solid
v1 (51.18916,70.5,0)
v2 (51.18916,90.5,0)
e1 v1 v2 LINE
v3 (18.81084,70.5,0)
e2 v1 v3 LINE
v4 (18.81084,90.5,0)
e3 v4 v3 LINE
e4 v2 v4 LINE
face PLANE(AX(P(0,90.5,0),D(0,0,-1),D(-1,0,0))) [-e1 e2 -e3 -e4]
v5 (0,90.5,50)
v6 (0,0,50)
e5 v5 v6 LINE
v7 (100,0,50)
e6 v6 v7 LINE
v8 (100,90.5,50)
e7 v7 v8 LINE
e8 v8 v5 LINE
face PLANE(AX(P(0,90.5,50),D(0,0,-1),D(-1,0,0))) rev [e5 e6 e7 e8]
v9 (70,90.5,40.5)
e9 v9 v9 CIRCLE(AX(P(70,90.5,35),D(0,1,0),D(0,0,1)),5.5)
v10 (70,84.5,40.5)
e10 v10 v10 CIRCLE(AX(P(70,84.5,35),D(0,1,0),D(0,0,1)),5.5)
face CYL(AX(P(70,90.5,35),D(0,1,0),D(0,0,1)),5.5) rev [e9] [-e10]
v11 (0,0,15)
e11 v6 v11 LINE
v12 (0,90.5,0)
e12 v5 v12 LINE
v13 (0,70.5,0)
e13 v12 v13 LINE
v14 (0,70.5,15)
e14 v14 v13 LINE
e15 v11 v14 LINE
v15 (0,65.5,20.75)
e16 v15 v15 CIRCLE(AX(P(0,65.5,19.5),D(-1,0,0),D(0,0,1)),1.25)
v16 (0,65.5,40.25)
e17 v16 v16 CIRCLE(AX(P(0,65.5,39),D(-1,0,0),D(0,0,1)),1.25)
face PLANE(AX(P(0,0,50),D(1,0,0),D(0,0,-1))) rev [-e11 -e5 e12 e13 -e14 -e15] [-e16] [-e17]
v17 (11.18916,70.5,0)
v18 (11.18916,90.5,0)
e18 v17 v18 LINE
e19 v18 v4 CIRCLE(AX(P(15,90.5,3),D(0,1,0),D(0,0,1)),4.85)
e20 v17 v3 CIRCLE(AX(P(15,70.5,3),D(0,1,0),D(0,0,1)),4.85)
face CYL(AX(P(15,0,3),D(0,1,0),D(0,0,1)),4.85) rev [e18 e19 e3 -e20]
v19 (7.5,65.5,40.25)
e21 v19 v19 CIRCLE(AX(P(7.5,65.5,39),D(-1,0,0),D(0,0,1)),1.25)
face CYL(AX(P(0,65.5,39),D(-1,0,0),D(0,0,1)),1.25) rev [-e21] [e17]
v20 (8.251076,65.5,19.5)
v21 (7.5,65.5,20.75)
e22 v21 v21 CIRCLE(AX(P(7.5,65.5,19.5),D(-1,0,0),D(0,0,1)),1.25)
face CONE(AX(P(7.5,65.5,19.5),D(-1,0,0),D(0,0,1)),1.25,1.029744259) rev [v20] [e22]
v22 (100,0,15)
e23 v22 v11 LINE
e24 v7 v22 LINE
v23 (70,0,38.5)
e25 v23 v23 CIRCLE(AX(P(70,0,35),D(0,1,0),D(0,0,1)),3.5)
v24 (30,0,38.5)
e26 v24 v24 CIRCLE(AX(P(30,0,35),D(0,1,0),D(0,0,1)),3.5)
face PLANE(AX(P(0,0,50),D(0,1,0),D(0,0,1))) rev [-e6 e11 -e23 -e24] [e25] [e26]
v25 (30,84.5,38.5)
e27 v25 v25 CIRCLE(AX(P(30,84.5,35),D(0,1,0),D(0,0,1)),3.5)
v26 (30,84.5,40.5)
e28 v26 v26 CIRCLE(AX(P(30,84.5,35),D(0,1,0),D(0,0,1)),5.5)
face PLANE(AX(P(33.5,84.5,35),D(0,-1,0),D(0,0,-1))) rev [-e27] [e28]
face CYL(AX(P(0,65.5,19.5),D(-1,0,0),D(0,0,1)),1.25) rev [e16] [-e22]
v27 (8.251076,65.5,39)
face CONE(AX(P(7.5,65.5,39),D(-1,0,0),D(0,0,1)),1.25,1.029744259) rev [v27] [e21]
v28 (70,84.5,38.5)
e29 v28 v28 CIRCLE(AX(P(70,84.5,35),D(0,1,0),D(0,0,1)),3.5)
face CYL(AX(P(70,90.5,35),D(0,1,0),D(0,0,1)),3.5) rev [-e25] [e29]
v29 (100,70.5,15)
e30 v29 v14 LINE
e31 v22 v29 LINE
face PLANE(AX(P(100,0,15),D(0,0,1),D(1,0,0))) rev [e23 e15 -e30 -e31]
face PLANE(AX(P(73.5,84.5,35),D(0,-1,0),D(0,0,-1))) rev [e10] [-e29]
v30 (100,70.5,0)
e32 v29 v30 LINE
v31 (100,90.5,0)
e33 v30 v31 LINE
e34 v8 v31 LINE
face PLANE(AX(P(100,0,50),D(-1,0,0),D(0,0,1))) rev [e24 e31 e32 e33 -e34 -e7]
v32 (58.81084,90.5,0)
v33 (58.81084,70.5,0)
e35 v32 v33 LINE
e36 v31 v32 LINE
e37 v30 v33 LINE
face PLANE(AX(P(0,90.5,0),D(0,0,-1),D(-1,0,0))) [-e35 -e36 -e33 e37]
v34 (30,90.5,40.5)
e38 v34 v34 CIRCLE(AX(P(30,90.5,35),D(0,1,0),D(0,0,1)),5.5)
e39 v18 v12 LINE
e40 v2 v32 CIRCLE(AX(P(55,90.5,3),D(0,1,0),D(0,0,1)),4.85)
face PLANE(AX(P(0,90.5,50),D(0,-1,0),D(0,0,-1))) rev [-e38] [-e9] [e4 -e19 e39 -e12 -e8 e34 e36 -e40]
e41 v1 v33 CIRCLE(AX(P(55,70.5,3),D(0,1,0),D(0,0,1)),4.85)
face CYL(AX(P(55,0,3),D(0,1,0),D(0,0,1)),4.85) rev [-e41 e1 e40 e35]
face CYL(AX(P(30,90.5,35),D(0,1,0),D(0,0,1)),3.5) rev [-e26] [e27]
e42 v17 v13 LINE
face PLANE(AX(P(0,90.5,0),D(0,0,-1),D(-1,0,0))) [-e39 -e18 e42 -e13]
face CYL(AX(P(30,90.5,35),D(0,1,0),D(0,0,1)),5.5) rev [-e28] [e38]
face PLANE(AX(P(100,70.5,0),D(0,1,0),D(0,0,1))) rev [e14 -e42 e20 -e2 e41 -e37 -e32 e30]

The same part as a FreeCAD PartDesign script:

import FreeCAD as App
import Part
import Sketcher
from FreeCAD import Vector

doc = App.newDocument("Part")
body = doc.addObject("PartDesign::Body", "Body")

# Sketch on XY plane
sketch1 = doc.addObject("Sketcher::SketchObject", "Sketch")
body.addObject(sketch1)
sketch1.AttachmentSupport = (doc.XY_Plane, [""])
sketch1.MapMode = "FlatFace"
sketch1.addGeometry(Part.LineSegment(Vector(0, 90, 0), Vector(0, 0, 0)), False)
sketch1.addGeometry(Part.LineSegment(Vector(0, 0, 0), Vector(100, 0, 0)), False)
sketch1.addGeometry(Part.LineSegment(Vector(100, 0, 0), Vector(100, 90, 0)), False)
sketch1.addGeometry(Part.LineSegment(Vector(100, 90, 0), Vector(0, 90, 0)), False)
sketch1.addConstraint(Sketcher.Constraint("Coincident", 0, 2, 1, 1))
sketch1.addConstraint(Sketcher.Constraint("Coincident", 1, 2, 2, 1))
sketch1.addConstraint(Sketcher.Constraint("Coincident", 2, 2, 3, 1))
sketch1.addConstraint(Sketcher.Constraint("Coincident", 3, 2, 0, 1))
sketch1.addConstraint(Sketcher.Constraint("Vertical", 0))
sketch1.addConstraint(Sketcher.Constraint("Horizontal", 1))
sketch1.addConstraint(Sketcher.Constraint("Vertical", 2))
sketch1.addConstraint(Sketcher.Constraint("Horizontal", 3))
sketch1.addConstraint(Sketcher.Constraint("Coincident", 0, 2, -1, 1))
sketch1.addConstraint(Sketcher.Constraint("DistanceX", 1, 1, 1, 2, 100.0))
sketch1.addConstraint(Sketcher.Constraint("DistanceY", 0, 2, 0, 1, 90.5))
pad1 = doc.addObject("PartDesign::Pad", "Pad")
body.addObject(pad1)
pad1.Profile = sketch1
pad1.Length = 50

# Sketch on YZ plane
sketch2 = doc.addObject("Sketcher::SketchObject", "Sketch001")
body.addObject(sketch2)
sketch2.AttachmentSupport = (doc.YZ_Plane, [""])
sketch2.MapMode = "FlatFace"
sketch2.addGeometry(Part.LineSegment(Vector(70, 0, 0), Vector(0, 0, 0)), False)
sketch2.addGeometry(Part.LineSegment(Vector(0, 0, 0), Vector(0, 15, 0)), False)
sketch2.addGeometry(Part.LineSegment(Vector(0, 15, 0), Vector(70, 15, 0)), False)
sketch2.addGeometry(Part.LineSegment(Vector(70, 15, 0), Vector(70, 0, 0)), False)
sketch2.addConstraint(Sketcher.Constraint("Coincident", 0, 2, 1, 1))
sketch2.addConstraint(Sketcher.Constraint("Coincident", 1, 2, 2, 1))
sketch2.addConstraint(Sketcher.Constraint("Coincident", 2, 2, 3, 1))
sketch2.addConstraint(Sketcher.Constraint("Coincident", 3, 2, 0, 1))
sketch2.addConstraint(Sketcher.Constraint("Horizontal", 0))
sketch2.addConstraint(Sketcher.Constraint("Vertical", 1))
sketch2.addConstraint(Sketcher.Constraint("Horizontal", 2))
sketch2.addConstraint(Sketcher.Constraint("Vertical", 3))
sketch2.addConstraint(Sketcher.Constraint("Coincident", 0, 2, -1, 1))
sketch2.addConstraint(Sketcher.Constraint("DistanceY", 1, 1, 1, 2, 15.0))
sketch2.addConstraint(Sketcher.Constraint("DistanceX", 0, 2, 0, 1, 70.5))
pocket1 = doc.addObject("PartDesign::Pocket", "Pocket")
body.addObject(pocket1)
pocket1.Profile = sketch2
pocket1.Type = "ThroughAll"
pocket1.Reversed = True

# Sketch on XZ plane
sketch3 = doc.addObject("Sketcher::SketchObject", "Sketch002")
body.addObject(sketch3)
sketch3.AttachmentSupport = (doc.XZ_Plane, [""])
sketch3.MapMode = "FlatFace"
sketch3.AttachmentOffset = App.Placement(Vector(0, 0, -90.5), App.Rotation())
sketch3.addGeometry(Part.Circle(Vector(15, 3, 0), Vector(0, 0, 1), 4.8), False)
sketch3.addGeometry(Part.Circle(Vector(55, 3, 0), Vector(0, 0, 1), 4.8), False)
sketch3.addConstraint(Sketcher.Constraint("Equal", 0, 1))
sketch3.addConstraint(Sketcher.Constraint("Horizontal", 0, 3, 1, 3))
sketch3.addConstraint(Sketcher.Constraint("Diameter", 0, 9.7))
sketch3.addConstraint(Sketcher.Constraint("DistanceX", -1, 1, 0, 3, 15.0))
sketch3.addConstraint(Sketcher.Constraint("DistanceY", -1, 1, 0, 3, 3.0))
sketch3.addConstraint(Sketcher.Constraint("DistanceX", -1, 1, 1, 3, 55.0))
pocket2 = doc.addObject("PartDesign::Pocket", "Pocket001")
body.addObject(pocket2)
pocket2.Profile = sketch3
pocket2.Type = "ThroughAll"
pocket2.Reversed = True

# Sketch on XZ plane
sketch4 = doc.addObject("Sketcher::SketchObject", "Sketch003")
body.addObject(sketch4)
sketch4.AttachmentSupport = (doc.XZ_Plane, [""])
sketch4.MapMode = "FlatFace"
sketch4.AttachmentOffset = App.Placement(Vector(0, 0, -90.5), App.Rotation())
sketch4.addGeometry(Part.Circle(Vector(30, 35, 0), Vector(0, 0, 1), 3.5), False)
sketch4.addGeometry(Part.Circle(Vector(70, 35, 0), Vector(0, 0, 1), 3.5), False)
sketch4.addConstraint(Sketcher.Constraint("Equal", 0, 1))
sketch4.addConstraint(Sketcher.Constraint("Horizontal", 0, 3, 1, 3))
sketch4.addConstraint(Sketcher.Constraint("Diameter", 0, 7.0))
sketch4.addConstraint(Sketcher.Constraint("DistanceX", -1, 1, 0, 3, 30.0))
sketch4.addConstraint(Sketcher.Constraint("DistanceY", -1, 1, 0, 3, 35.0))
sketch4.addConstraint(Sketcher.Constraint("DistanceX", -1, 1, 1, 3, 70.0))
doc.recompute()
hole = doc.addObject("PartDesign::Hole", "Hole")
body.addObject(hole)
hole.Profile = sketch4
hole.ThreadType = "None"
hole.Diameter = 7
hole.DepthType = "ThroughAll"
hole.HoleCutType = "Counterbore"
hole.HoleCutDiameter = 11
hole.HoleCutDepth = 6
hole.Reversed = True

# Sketch on YZ plane
sketch5 = doc.addObject("Sketcher::SketchObject", "Sketch004")
body.addObject(sketch5)
sketch5.AttachmentSupport = (doc.YZ_Plane, [""])
sketch5.MapMode = "FlatFace"
sketch5.addGeometry(Part.Circle(Vector(65.5, 39, 0), Vector(0, 0, 1), 1.2), False)
sketch5.addGeometry(Part.Circle(Vector(65.5, 19.5, 0), Vector(0, 0, 1), 1.2), False)
sketch5.addConstraint(Sketcher.Constraint("Equal", 0, 1))
sketch5.addConstraint(Sketcher.Constraint("Vertical", 0, 3, 1, 3))
sketch5.addConstraint(Sketcher.Constraint("Diameter", 0, 2.5))
sketch5.addConstraint(Sketcher.Constraint("DistanceY", -1, 1, 0, 3, 39.0))
sketch5.addConstraint(Sketcher.Constraint("DistanceX", -1, 1, 0, 3, 65.5))
sketch5.addConstraint(Sketcher.Constraint("DistanceY", -1, 1, 1, 3, 19.5))
doc.recompute()
hole2 = doc.addObject("PartDesign::Hole", "Hole001")
body.addObject(hole2)
hole2.Profile = sketch5
hole2.ThreadType = "None"
hole2.Diameter = 2.5
hole2.DepthType = "Dimension"
hole2.Depth = 7.5
hole2.DrillPoint = "Angled"
hole2.DrillPointAngle = 118
hole2.Reversed = True

doc.recompute()
